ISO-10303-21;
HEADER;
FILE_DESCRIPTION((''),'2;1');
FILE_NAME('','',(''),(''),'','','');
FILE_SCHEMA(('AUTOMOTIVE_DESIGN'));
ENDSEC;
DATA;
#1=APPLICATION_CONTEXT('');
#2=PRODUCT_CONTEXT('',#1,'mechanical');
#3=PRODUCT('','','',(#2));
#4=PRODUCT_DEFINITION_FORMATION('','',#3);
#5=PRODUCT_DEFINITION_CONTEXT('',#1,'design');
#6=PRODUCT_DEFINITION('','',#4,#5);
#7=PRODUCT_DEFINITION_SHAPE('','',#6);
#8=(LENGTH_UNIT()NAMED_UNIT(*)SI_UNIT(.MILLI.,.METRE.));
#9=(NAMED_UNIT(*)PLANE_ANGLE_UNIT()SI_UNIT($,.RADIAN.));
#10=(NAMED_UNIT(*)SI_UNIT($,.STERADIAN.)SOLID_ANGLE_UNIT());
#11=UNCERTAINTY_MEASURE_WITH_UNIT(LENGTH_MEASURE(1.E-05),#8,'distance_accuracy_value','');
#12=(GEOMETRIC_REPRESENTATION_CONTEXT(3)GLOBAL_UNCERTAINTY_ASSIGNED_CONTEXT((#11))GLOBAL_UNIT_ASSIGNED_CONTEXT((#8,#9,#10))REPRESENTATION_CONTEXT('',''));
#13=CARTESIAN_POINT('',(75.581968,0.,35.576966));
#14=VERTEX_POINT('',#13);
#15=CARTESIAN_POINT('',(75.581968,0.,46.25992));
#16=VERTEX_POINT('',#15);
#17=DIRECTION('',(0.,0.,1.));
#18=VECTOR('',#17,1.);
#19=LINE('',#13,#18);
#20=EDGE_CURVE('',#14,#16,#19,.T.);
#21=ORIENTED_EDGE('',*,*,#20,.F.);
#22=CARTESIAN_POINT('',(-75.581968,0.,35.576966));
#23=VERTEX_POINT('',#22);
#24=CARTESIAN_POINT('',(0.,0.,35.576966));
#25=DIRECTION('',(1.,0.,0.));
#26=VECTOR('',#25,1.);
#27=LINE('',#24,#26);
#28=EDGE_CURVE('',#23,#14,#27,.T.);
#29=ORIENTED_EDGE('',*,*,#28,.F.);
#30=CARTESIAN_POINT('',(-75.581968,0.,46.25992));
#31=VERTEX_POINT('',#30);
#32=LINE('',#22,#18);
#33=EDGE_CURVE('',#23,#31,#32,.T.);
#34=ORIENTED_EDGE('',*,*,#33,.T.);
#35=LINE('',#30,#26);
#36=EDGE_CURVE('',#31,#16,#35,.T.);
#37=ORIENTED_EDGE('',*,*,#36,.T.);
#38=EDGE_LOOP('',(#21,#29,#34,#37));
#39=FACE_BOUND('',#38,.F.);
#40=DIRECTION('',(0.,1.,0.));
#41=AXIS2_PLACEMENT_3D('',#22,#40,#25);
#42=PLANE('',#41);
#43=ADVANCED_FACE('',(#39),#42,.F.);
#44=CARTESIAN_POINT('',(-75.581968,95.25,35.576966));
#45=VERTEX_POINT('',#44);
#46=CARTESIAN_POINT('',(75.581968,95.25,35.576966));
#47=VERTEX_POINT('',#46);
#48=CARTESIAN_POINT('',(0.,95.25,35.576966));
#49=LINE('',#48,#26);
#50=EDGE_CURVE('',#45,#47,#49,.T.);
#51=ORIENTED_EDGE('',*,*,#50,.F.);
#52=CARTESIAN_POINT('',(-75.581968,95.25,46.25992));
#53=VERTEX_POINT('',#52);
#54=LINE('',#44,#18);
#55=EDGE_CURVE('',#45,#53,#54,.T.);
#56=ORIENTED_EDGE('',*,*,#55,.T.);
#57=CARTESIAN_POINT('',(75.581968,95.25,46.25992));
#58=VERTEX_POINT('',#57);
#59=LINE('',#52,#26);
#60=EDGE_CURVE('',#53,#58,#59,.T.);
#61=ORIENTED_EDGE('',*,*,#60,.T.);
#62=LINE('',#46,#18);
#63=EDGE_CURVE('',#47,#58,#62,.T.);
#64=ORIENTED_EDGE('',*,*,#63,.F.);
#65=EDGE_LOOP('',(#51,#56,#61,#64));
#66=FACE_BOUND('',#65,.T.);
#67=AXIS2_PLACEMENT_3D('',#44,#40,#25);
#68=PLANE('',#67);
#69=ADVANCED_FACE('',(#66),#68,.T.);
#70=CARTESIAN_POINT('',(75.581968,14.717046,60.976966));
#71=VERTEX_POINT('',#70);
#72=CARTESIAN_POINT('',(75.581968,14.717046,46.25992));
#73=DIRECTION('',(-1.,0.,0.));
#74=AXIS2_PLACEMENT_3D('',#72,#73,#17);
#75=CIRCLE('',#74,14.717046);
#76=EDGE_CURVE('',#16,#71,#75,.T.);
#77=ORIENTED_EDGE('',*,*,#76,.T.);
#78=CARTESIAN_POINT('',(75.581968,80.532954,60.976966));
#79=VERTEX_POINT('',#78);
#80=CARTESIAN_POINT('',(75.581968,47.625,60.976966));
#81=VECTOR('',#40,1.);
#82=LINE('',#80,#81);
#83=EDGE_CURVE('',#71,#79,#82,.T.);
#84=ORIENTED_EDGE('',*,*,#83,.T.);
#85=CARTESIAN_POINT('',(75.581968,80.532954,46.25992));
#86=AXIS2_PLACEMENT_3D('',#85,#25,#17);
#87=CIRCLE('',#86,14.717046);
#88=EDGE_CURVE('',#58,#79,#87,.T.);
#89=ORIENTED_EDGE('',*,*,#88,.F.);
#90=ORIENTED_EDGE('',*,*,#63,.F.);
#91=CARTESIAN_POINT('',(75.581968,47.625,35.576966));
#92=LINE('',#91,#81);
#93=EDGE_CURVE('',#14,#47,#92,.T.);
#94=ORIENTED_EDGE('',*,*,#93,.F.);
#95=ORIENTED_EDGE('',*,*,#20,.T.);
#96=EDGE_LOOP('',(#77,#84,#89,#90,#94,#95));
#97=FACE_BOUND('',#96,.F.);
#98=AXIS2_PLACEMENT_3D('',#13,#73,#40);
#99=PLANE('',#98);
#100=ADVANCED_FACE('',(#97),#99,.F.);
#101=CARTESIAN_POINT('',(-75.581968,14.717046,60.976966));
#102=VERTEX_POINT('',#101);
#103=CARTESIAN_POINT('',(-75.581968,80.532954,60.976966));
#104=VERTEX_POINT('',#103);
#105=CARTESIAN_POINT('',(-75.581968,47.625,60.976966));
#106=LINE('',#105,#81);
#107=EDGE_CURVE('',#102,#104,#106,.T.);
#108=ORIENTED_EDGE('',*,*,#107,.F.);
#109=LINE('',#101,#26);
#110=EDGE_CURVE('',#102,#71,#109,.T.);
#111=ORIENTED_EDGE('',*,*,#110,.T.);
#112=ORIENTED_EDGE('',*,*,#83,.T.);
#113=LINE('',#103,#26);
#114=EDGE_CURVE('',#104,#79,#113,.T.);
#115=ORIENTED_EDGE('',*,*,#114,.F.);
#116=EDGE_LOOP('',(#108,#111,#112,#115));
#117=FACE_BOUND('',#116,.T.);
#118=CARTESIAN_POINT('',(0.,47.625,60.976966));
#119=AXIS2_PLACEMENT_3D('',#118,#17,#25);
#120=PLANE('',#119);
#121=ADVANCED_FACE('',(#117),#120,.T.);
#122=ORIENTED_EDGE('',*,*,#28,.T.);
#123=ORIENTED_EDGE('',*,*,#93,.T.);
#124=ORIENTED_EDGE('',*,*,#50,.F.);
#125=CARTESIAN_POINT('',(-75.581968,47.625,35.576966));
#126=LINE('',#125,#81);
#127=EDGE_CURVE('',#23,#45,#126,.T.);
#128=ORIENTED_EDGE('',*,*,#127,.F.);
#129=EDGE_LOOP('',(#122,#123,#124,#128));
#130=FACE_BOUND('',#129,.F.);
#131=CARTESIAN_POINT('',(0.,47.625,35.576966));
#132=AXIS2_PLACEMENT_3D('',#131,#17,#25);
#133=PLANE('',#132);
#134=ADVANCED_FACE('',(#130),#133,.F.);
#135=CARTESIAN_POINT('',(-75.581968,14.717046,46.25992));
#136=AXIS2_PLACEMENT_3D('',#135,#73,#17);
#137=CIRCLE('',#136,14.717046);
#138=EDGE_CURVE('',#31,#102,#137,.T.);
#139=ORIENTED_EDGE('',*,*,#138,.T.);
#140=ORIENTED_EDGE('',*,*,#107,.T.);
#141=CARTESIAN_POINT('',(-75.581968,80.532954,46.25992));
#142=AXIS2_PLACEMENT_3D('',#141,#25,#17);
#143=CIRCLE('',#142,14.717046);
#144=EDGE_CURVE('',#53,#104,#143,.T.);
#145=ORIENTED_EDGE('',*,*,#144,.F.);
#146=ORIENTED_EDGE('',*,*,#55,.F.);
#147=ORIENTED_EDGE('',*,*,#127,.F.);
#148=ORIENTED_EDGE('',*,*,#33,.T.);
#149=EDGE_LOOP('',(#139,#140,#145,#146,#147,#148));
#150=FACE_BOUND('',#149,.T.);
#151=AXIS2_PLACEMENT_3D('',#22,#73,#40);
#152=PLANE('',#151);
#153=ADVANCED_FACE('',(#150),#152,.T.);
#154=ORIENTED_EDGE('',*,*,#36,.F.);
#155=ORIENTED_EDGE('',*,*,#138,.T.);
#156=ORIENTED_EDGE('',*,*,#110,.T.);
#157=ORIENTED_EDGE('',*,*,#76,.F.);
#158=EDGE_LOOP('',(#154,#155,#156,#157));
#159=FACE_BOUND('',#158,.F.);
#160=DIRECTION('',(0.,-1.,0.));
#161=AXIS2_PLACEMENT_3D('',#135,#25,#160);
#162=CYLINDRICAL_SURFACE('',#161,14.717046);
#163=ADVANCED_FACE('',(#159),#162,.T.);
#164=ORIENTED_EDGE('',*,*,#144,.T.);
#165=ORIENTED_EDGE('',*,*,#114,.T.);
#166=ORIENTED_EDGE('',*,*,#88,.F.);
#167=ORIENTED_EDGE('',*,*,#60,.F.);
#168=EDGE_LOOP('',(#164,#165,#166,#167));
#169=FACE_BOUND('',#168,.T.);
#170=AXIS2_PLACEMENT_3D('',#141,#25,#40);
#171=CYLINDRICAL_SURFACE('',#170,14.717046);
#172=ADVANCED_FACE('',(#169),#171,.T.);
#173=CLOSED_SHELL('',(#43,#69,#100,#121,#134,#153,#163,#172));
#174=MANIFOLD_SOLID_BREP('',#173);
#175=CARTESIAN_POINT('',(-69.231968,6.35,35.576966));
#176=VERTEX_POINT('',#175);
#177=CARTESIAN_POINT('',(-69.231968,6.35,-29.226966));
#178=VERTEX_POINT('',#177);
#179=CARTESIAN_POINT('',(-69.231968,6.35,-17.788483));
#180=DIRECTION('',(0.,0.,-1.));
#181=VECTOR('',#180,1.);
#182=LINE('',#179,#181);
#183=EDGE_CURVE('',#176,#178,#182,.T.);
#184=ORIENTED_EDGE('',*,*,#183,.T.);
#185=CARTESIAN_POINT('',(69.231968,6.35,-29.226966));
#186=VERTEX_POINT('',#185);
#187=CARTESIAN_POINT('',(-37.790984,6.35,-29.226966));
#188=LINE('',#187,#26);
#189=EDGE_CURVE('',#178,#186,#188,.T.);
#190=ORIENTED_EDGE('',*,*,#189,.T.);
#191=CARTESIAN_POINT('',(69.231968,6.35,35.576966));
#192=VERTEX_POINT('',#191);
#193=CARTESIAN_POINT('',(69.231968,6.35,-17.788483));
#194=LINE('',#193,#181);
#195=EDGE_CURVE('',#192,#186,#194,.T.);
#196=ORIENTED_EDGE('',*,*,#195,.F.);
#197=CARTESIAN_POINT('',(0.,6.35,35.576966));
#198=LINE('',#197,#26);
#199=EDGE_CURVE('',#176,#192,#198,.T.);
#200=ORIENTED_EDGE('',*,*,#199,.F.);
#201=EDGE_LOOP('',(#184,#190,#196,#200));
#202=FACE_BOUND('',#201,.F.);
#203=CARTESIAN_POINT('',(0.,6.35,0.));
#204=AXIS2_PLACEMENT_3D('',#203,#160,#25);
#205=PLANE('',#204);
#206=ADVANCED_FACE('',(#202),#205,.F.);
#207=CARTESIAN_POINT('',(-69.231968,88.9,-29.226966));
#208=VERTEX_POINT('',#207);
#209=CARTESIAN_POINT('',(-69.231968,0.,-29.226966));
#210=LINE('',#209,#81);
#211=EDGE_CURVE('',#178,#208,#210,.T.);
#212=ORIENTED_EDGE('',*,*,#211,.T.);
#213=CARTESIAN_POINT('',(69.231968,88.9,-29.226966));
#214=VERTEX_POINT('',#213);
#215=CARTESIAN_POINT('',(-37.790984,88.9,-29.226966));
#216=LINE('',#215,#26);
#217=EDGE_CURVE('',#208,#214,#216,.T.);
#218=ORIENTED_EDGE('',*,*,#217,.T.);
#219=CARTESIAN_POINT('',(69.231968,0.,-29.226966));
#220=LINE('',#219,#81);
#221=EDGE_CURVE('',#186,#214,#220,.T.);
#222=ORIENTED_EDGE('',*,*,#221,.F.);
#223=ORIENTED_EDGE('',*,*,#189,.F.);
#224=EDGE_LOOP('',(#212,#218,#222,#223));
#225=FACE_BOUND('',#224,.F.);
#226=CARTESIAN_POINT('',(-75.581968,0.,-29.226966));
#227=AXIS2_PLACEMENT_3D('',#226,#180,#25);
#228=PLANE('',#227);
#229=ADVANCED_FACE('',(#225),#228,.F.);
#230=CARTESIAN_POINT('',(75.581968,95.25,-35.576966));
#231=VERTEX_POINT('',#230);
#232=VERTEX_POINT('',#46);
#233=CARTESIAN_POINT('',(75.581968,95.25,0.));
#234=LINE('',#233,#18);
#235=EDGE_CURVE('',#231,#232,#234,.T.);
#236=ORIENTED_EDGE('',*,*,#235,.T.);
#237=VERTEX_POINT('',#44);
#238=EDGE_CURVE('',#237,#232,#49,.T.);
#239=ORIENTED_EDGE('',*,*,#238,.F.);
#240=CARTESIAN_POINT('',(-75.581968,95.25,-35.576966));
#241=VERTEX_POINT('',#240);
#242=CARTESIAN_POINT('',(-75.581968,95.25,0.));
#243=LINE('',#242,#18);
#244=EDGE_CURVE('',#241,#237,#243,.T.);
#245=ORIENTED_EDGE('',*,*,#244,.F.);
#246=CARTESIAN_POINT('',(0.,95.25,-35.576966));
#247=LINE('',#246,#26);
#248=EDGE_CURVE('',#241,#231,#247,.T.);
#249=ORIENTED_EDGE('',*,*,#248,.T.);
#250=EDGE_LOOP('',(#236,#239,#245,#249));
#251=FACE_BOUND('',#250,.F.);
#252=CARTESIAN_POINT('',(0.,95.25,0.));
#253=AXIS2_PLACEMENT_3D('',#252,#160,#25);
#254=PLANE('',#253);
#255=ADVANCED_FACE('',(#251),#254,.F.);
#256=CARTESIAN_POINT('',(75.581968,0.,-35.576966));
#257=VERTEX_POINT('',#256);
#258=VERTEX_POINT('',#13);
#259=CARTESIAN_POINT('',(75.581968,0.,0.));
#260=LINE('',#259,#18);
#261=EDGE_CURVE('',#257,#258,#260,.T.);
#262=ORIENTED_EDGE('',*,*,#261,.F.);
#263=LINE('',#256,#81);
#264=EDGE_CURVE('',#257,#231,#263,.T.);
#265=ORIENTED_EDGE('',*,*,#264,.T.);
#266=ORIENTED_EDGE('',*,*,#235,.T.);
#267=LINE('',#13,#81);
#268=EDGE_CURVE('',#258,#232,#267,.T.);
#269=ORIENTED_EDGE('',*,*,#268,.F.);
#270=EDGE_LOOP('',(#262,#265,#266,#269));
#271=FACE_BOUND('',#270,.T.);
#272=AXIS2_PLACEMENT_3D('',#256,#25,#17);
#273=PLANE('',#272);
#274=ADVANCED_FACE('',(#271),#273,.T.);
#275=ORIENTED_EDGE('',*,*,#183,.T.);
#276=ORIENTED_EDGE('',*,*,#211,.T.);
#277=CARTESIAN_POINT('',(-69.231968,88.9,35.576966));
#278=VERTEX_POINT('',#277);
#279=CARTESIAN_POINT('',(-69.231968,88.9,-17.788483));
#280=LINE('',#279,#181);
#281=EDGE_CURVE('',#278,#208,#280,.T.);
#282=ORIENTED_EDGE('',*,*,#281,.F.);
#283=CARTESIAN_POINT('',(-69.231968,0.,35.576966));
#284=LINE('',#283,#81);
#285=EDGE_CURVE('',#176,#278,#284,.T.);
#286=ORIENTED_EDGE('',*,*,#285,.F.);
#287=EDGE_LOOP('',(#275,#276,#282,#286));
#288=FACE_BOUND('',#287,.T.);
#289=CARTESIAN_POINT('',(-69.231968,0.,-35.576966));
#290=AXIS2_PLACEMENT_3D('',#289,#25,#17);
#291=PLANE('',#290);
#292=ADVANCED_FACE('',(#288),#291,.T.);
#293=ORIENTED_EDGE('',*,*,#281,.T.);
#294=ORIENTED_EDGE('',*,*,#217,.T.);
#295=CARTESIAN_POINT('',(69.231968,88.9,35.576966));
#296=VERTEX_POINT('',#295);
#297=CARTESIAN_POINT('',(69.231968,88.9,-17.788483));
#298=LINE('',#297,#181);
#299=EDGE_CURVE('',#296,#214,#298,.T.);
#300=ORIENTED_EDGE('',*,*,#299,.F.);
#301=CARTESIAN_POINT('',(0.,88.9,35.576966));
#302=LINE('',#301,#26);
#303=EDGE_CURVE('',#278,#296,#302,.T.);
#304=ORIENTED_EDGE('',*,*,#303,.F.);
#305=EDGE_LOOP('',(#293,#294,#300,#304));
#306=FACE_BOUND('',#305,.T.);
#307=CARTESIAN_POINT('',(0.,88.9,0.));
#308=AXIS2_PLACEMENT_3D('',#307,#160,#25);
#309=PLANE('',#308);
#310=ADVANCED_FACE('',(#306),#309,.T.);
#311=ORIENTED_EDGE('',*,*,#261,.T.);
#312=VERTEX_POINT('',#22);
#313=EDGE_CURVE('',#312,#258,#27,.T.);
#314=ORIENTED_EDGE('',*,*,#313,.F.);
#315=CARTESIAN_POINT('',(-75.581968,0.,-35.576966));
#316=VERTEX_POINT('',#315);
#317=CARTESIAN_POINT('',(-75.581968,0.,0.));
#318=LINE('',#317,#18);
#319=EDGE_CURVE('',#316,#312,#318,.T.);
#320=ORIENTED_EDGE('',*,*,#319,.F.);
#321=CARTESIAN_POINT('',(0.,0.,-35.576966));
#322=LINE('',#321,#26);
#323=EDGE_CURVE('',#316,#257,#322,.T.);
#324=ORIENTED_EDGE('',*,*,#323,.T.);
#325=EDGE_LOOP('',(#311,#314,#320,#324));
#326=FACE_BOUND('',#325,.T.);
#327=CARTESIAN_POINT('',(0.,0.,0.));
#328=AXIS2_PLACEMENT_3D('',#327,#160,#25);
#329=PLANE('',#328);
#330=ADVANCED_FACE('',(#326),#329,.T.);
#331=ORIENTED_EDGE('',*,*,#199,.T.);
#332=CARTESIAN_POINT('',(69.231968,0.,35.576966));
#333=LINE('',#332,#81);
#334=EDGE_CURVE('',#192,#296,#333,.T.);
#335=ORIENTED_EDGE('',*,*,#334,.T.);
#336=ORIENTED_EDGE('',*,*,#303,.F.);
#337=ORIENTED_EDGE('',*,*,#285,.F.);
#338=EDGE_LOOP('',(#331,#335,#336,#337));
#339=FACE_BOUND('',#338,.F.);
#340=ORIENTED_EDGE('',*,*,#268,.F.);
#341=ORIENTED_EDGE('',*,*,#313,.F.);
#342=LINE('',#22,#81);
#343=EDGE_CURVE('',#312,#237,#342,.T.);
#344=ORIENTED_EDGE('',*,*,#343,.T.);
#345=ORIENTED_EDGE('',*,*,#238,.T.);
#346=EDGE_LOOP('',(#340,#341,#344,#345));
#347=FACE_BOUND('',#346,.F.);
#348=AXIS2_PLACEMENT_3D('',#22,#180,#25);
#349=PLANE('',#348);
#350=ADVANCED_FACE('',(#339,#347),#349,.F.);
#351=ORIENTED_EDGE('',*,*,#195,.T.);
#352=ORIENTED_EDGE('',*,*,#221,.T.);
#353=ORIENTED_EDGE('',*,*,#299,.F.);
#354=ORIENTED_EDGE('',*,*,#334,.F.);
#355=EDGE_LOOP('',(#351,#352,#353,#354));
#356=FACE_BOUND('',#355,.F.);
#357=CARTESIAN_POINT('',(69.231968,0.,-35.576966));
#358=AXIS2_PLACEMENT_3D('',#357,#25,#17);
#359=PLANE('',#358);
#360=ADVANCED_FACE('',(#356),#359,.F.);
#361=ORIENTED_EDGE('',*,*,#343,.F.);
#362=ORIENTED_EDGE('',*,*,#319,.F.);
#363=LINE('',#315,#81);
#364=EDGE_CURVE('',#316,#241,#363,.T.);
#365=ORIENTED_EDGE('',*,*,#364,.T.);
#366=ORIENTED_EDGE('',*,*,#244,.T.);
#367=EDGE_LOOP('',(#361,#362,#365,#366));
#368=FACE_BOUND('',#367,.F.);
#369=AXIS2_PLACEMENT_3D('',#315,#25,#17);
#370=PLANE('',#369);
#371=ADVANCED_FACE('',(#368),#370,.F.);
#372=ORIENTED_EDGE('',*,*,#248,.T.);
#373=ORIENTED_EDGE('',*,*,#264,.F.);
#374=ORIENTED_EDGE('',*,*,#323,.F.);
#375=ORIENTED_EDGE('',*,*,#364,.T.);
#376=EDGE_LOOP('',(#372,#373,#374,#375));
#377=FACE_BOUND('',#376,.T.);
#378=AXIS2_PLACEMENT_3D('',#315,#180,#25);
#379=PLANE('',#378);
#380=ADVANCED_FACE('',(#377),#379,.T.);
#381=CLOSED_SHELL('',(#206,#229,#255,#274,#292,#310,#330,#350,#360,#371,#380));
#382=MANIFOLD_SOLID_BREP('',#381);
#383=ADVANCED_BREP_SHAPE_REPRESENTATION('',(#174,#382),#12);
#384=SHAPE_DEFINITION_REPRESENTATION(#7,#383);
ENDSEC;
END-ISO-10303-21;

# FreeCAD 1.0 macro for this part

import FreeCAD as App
import Part
import Sketcher
Q = App.Units.Quantity


def edges_at(feature, points):
    """Names of the edges that pass closest to the given points."""
    edges = feature.Shape.Edges
    near = lambda p: min(range(len(edges)), key=lambda i: edges[i].distToShape(Part.Vertex(*p))[0])
    return sorted({f"Edge{near(p) + 1}" for p in points})


def faces_at(feature, points):
    """Names of the faces that lie closest to the given points."""
    faces = feature.Shape.Faces
    near = lambda p: min(range(len(faces)), key=lambda i: faces[i].distToShape(Part.Vertex(*p))[0])
    return sorted({f"Face{near(p) + 1}" for p in points})


def add_polygon(sketch, points):
    """Adds a closed chain of lines whose ends are joined by coincident constraints."""
    first, n = sketch.GeometryCount, len(points)
    for a, b in zip(points, points[1:] + points[:1]):
        sketch.addGeometry(Part.LineSegment(App.Vector(*a, 0), App.Vector(*b, 0)), False)
    for i in range(n):
        sketch.addConstraint(Sketcher.Constraint("Coincident", first + i, 2, first + (i + 1) % n, 1))

doc = App.newDocument("Part")
body = doc.addObject("PartDesign::Body", "Body")

# Sketch on XZ plane
sketch1 = body.newObject("Sketcher::SketchObject", "Sketch")
sketch1.AttachmentSupport = (doc.getObject("XZ_Plane"), [""])
sketch1.MapMode = "FlatFace"
add_polygon(sketch1, [(-76, 36), (-76, -36), (76, -36), (76, 36)])  # lines 0-3
sketch1.addConstraint([
    Sketcher.Constraint("Vertical", 0),
    Sketcher.Constraint("Horizontal", 1),
    Sketcher.Constraint("Vertical", 2),
    Sketcher.Constraint("Horizontal", 3),
    Sketcher.Constraint("Symmetric", 0, 2, 2, 2, -1, 1),
    Sketcher.Constraint("DistanceY", 0, 2, 0, 1, 71.153932),
    Sketcher.Constraint("DistanceX", 1, 1, 1, 2, 151.163936),
])
pad1 = body.newObject("PartDesign::Pad", "Pad")
pad1.Profile = sketch1
pad1.Length = Q("3.75 in")
pad1.Reversed = True
doc.recompute()

thickness = body.newObject("PartDesign::Thickness", "Thickness")
thickness.Base = (pad1, faces_at(pad1, [(0, 47.625, 35.577)]))
thickness.Value = Q("0.25 in")
thickness.Reversed = True
thickness.Join = "Arc"
body2 = doc.addObject("PartDesign::Body", "Body001")

# Sketch on XY plane
sketch2 = body2.newObject("Sketcher::SketchObject", "Sketch001")
sketch2.AttachmentSupport = (doc.getObject("XY_Plane001"), [""])
sketch2.MapMode = "FlatFace"
sketch2.AttachmentOffset = App.Placement(App.Vector(0, 0, 35.576966), App.Rotation())
add_polygon(sketch2, [(-76, 95), (-76, 0), (76, 0), (76, 95)])  # lines 0-3
sketch2.addConstraint([
    Sketcher.Constraint("Vertical", 0),
    Sketcher.Constraint("Horizontal", 1),
    Sketcher.Constraint("Vertical", 2),
    Sketcher.Constraint("Horizontal", 3),
    Sketcher.Constraint("Symmetric", 0, 2, 1, 2, -1, 1),
    Sketcher.Constraint("DistanceY", 0, 2, 0, 1, Q("3.75 in")),
    Sketcher.Constraint("DistanceX", 1, 1, 1, 2, 151.163936),
])
pad2 = body2.newObject("PartDesign::Pad", "Pad001")
pad2.Profile = sketch2
pad2.Length = Q("1 in")
doc.recompute()

fillet = body2.newObject("PartDesign::Fillet", "Fillet")
fillet.Base = (pad2, edges_at(pad2, [(0, 0, 60.977), (0, 95.25, 60.977)]))
fillet.Radius = 14.717046

doc.recompute()
